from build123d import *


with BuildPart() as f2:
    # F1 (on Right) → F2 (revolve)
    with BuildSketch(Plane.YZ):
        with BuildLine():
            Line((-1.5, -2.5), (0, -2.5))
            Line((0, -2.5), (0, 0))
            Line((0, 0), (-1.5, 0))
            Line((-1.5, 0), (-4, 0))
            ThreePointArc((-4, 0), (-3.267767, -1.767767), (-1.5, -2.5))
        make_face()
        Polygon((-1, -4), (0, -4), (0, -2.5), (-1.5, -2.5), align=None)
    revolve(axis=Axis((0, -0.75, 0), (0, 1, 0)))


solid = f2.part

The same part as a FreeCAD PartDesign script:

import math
import FreeCAD as App
import Part
import Sketcher
Q = App.Units.Quantity

doc = App.newDocument("Part")
body = doc.addObject("PartDesign::Body", "Body")

sketch1 = doc.addObject("Sketcher::SketchObject", "Sketch")
body.addObject(sketch1)
sketch1.AttachmentSupport = (doc.YZ_Plane, [""])
sketch1.MapMode = "FlatFace"
sketch1.addGeometry([
    Part.LineSegment(App.Vector(0, 0, 0), App.Vector(-4, 0, 0)),
    Part.ArcOfCircle(Part.Circle(App.Vector(-1.5, 0, 0), App.Vector(0, 0, 1), 2.5), math.radians(180), math.radians(270)),
    Part.LineSegment(App.Vector(-1.5, -2.5, 0), App.Vector(-1, -4, 0)),
    Part.LineSegment(App.Vector(-1, -4, 0), App.Vector(0, -4, 0)),
    Part.LineSegment(App.Vector(0, -4, 0), App.Vector(0, 0, 0)),
], False)
sketch1.addConstraint([
    Sketcher.Constraint("Coincident", 0, 2, 1, 1),
    Sketcher.Constraint("Coincident", 1, 2, 2, 1),
    Sketcher.Constraint("Coincident", 2, 2, 3, 1),
    Sketcher.Constraint("Coincident", 3, 2, 4, 1),
    Sketcher.Constraint("Coincident", 4, 2, 0, 1),
    Sketcher.Constraint("Horizontal", 0),
    Sketcher.Constraint("Horizontal", 3),
    Sketcher.Constraint("Vertical", 4),
    Sketcher.Constraint("Coincident", 4, 2, -1, 1),
    Sketcher.Constraint("PointOnObject", 1, 3, -1),
    Sketcher.Constraint("Equal", 0, 4),
    Sketcher.Constraint("Radius", 1, Q("2.5 mm")),
    Sketcher.Constraint("DistanceX", 0, 2, 0, 1, Q("4 mm")),
    Sketcher.Constraint("DistanceX", 3, 1, 3, 2, Q("1 mm")),
    Sketcher.Constraint("DistanceX", 1, 2, -1, 1, Q("1.5 mm")),
])
revolution = doc.addObject("PartDesign::Revolution", "Revolution")
body.addObject(revolution)
revolution.Profile = sketch1
revolution.ReferenceAxis = (sketch1, ["H_Axis"])
revolution.Angle = 360

doc.recompute()
